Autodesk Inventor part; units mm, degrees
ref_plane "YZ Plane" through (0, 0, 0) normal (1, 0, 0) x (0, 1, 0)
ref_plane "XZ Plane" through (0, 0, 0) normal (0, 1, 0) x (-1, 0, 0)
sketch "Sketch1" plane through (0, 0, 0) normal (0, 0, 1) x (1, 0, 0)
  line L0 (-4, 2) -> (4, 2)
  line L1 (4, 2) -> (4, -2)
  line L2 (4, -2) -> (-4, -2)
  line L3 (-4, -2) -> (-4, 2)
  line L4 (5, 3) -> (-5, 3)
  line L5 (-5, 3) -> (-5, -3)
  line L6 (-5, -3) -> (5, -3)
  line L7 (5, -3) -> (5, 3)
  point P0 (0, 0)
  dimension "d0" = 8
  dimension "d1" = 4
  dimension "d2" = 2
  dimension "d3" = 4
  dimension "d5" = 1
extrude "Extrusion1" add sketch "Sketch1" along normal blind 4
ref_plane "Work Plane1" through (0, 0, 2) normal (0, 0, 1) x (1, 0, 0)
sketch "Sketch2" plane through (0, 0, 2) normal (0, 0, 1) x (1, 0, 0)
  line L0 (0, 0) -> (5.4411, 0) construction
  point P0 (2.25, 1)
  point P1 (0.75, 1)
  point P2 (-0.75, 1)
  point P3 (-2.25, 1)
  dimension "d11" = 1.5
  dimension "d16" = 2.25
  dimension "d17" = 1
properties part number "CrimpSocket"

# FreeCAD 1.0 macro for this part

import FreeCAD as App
import Part
import Sketcher

V = App.Vector
Q = App.Units.Quantity

doc = App.newDocument("Part")
body = doc.addObject("PartDesign::Body", "Body")

sketch1 = body.newObject("Sketcher::SketchObject", "Sketch")
sketch1.AttachmentSupport = (doc.getObject("XY_Plane"), [""])
sketch1.MapMode = "FlatFace"
sketch1.addGeometry([
    Part.LineSegment(V(5, -3, 0), V(5, 3, 0)),
    Part.LineSegment(V(5, 3, 0), V(-5, 3, 0)),
    Part.LineSegment(V(-5, 3, 0), V(-5, -3, 0)),
    Part.LineSegment(V(-5, -3, 0), V(5, -3, 0)),
    Part.LineSegment(V(-4, -2, 0), V(-4, 2, 0)),
    Part.LineSegment(V(-4, 2, 0), V(4, 2, 0)),
    Part.LineSegment(V(4, 2, 0), V(4, -2, 0)),
    Part.LineSegment(V(4, -2, 0), V(-4, -2, 0)),
], False)
sketch1.addConstraint([
    Sketcher.Constraint("Coincident", 0, 2, 1, 1),
    Sketcher.Constraint("Coincident", 1, 2, 2, 1),
    Sketcher.Constraint("Coincident", 2, 2, 3, 1),
    Sketcher.Constraint("Coincident", 3, 2, 0, 1),
    Sketcher.Constraint("Coincident", 4, 2, 5, 1),
    Sketcher.Constraint("Coincident", 5, 2, 6, 1),
    Sketcher.Constraint("Coincident", 6, 2, 7, 1),
    Sketcher.Constraint("Coincident", 7, 2, 4, 1),
    Sketcher.Constraint("Vertical", 0),
    Sketcher.Constraint("Horizontal", 1),
    Sketcher.Constraint("Vertical", 2),
    Sketcher.Constraint("Horizontal", 3),
    Sketcher.Constraint("Vertical", 4),
    Sketcher.Constraint("Horizontal", 5),
    Sketcher.Constraint("Vertical", 6),
    Sketcher.Constraint("Horizontal", 7),
    Sketcher.Constraint("Symmetric", 0, 2, 2, 2, -1, 1),
    Sketcher.Constraint("Symmetric", 4, 2, 6, 2, -1, 1),
    Sketcher.Constraint("DistanceX", 5, 1, 5, 2, Q("8 mm")),
    Sketcher.Constraint("DistanceY", 4, 1, 4, 2, Q("4 mm")),
    Sketcher.Constraint("DistanceX", 1, 2, 4, 2, Q("1 mm")),
    Sketcher.Constraint("DistanceY", 4, 2, 1, 2, Q("1 mm")),
])
pad1 = body.newObject("PartDesign::Pad", "Pad")
pad1.Profile = sketch1
pad1.Length = 4

doc.recompute()
